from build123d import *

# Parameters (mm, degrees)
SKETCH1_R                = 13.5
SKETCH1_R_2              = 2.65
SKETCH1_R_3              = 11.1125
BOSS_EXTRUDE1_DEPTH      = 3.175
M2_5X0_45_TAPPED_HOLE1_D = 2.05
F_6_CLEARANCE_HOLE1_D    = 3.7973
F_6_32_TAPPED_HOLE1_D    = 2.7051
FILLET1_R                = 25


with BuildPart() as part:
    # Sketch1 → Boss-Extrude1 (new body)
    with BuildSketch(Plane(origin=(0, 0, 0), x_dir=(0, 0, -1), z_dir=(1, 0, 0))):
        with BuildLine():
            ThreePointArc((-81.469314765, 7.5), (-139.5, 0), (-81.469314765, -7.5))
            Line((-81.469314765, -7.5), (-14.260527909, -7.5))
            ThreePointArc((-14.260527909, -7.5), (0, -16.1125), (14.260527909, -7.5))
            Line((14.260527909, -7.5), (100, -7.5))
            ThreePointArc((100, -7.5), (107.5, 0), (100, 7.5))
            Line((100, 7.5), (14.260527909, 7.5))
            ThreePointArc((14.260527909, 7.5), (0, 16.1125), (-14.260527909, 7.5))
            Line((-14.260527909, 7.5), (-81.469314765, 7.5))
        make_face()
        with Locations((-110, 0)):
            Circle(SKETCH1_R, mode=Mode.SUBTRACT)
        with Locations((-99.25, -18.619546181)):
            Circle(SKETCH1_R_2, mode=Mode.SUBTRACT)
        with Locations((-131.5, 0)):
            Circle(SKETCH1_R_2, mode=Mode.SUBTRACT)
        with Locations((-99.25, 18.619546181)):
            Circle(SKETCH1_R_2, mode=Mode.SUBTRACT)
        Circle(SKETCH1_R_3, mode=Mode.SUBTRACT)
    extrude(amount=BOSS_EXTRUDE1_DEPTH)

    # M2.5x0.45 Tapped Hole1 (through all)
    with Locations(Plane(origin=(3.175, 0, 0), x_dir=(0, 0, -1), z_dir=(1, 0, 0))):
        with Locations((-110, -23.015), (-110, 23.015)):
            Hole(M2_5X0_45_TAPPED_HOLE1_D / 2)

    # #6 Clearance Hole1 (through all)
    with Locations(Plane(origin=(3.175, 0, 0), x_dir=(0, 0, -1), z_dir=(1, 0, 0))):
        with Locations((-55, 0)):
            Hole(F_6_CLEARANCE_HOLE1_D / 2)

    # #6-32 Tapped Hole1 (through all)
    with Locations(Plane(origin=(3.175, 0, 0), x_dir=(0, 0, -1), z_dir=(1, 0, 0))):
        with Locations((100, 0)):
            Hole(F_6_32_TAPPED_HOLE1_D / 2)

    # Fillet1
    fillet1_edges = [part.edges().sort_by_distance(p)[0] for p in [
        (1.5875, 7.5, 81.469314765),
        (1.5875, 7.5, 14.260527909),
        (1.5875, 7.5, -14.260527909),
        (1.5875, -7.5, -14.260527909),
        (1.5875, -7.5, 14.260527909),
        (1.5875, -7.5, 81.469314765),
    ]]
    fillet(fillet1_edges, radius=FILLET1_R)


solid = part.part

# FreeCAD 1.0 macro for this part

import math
import FreeCAD as App
import Part
import Sketcher


def edges_at(feature, points):
    """Names of the edges that pass closest to the given points."""
    edges = feature.Shape.Edges
    near = lambda p: min(range(len(edges)), key=lambda i: edges[i].distToShape(Part.Vertex(*p))[0])
    return sorted({f"Edge{near(p) + 1}" for p in points})

doc = App.newDocument("Part")
body = doc.addObject("PartDesign::Body", "Body")

sketch1 = body.newObject("Sketcher::SketchObject", "Sketch")
sketch1.AttachmentSupport = (doc.getObject("YZ_Plane"), [""])
sketch1.MapMode = "FlatFace"
sketch1.addGeometry(Part.ArcOfCircle(Part.Circle(App.Vector(0, 110, 0), App.Vector(0, 0, 1), 29.5), math.radians(-75), math.radians(255)), False)
sketch1.addGeometry(Part.LineSegment(App.Vector(-7.5, 81.5, 0), App.Vector(-7.5, 14.3, 0)), False)
sketch1.addGeometry(Part.ArcOfCircle(Part.Circle(App.Vector(0, 0, 0), App.Vector(0, 0, 1), 16.1), math.radians(118), math.radians(242)), False)
sketch1.addGeometry(Part.LineSegment(App.Vector(-7.5, -14.3, 0), App.Vector(-7.5, -100, 0)), False)
sketch1.addGeometry(Part.ArcOfCircle(Part.Circle(App.Vector(0, -100, 0), App.Vector(0, 0, 1), 7.5), math.radians(180), math.radians(360)), False)
sketch1.addGeometry(Part.LineSegment(App.Vector(7.5, -100, 0), App.Vector(7.5, -14.3, 0)), False)
sketch1.addGeometry(Part.ArcOfCircle(Part.Circle(App.Vector(0, 0, 0), App.Vector(0, 0, 1), 16.1), math.radians(-62), math.radians(62)), False)
sketch1.addGeometry(Part.LineSegment(App.Vector(7.5, 14.3, 0), App.Vector(7.5, 81.5, 0)), False)
sketch1.addGeometry(Part.Circle(App.Vector(-18.6, 99.2, 0), App.Vector(0, 0, 1), 2.6), False)
sketch1.addGeometry(Part.Circle(App.Vector(0, 131.5, 0), App.Vector(0, 0, 1), 2.6), False)
sketch1.addGeometry(Part.Circle(App.Vector(0, 110, 0), App.Vector(0, 0, 1), 13.5), False)
sketch1.addGeometry(Part.Circle(App.Vector(18.6, 99.2, 0), App.Vector(0, 0, 1), 2.6), False)
sketch1.addGeometry(Part.Circle(App.Vector(0, 0, 0), App.Vector(0, 0, 1), 11.1), False)
sketch1.addConstraint(Sketcher.Constraint("Coincident", 0, 2, 1, 1))
sketch1.addConstraint(Sketcher.Constraint("Coincident", 1, 2, 2, 1))
sketch1.addConstraint(Sketcher.Constraint("Coincident", 2, 2, 3, 1))
sketch1.addConstraint(Sketcher.Constraint("Tangent", 3, 2, 4, 1))
sketch1.addConstraint(Sketcher.Constraint("Tangent", 4, 2, 5, 1))
sketch1.addConstraint(Sketcher.Constraint("Coincident", 5, 2, 6, 1))
sketch1.addConstraint(Sketcher.Constraint("Coincident", 6, 2, 7, 1))
sketch1.addConstraint(Sketcher.Constraint("Coincident", 7, 2, 0, 1))
sketch1.addConstraint(Sketcher.Constraint("Vertical", 1))
sketch1.addConstraint(Sketcher.Constraint("Vertical", 3))
sketch1.addConstraint(Sketcher.Constraint("Vertical", 5))
sketch1.addConstraint(Sketcher.Constraint("Vertical", 7))
sketch1.addConstraint(Sketcher.Constraint("Coincident", 2, 3, -1, 1))
sketch1.addConstraint(Sketcher.Constraint("Coincident", 6, 3, -1, 1))
sketch1.addConstraint(Sketcher.Constraint("Coincident", 12, 3, -1, 1))
sketch1.addConstraint(Sketcher.Constraint("Coincident", 10, 3, 0, 3))
sketch1.addConstraint(Sketcher.Constraint("Equal", 2, 6))
sketch1.addConstraint(Sketcher.Constraint("Equal", 8, 9))
sketch1.addConstraint(Sketcher.Constraint("Equal", 9, 11))
sketch1.addConstraint(Sketcher.Constraint("Symmetric", 8, 3, 11, 3, -2))
sketch1.addConstraint(Sketcher.Constraint("Symmetric", 0, 2, 7, 2, -2))
sketch1.addConstraint(Sketcher.Constraint("PointOnObject", 4, 3, -2))
sketch1.addConstraint(Sketcher.Constraint("PointOnObject", 9, 3, -2))
sketch1.addConstraint(Sketcher.Constraint("Vertical", 1, 2, 2, 2))
sketch1.addConstraint(Sketcher.Constraint("Diameter", 10, 27.0))
sketch1.addConstraint(Sketcher.Constraint("Diameter", 8, 5.3))
sketch1.addConstraint(Sketcher.Constraint("Radius", 0, 29.5))
sketch1.addConstraint(Sketcher.Constraint("Radius", 4, 7.5))
sketch1.addConstraint(Sketcher.Constraint("Diameter", 12, 22.225))
sketch1.addConstraint(Sketcher.Constraint("DistanceY", -1, 1, 0, 3, 110.0))
sketch1.addConstraint(Sketcher.Constraint("DistanceY", 4, 3, -1, 1, 100.0))
sketch1.addConstraint(Sketcher.Constraint("DistanceY", -1, 1, 9, 3, 131.5))
sketch1.addConstraint(Sketcher.Constraint("Radius", 2, 16.1125))
sketch1.addConstraint(Sketcher.Constraint("DistanceY", -1, 1, 8, 3, 99.25))
sketch1.addConstraint(Sketcher.Constraint("DistanceX", 8, 3, -1, 1, 18.619546))
pad1 = body.newObject("PartDesign::Pad", "Pad")
pad1.Profile = sketch1
pad1.Length = 3.175

sketch2 = body.newObject("Sketcher::SketchObject", "Sketch001")
sketch2.AttachmentSupport = (doc.getObject("YZ_Plane"), [""])
sketch2.MapMode = "FlatFace"
sketch2.AttachmentOffset = App.Placement(App.Vector(0, 0, 3.175), App.Rotation())
sketch2.addGeometry(Part.Circle(App.Vector(-23, 110, 0), App.Vector(0, 0, 1), 1), False)
sketch2.addGeometry(Part.Circle(App.Vector(23, 110, 0), App.Vector(0, 0, 1), 1), False)
sketch2.addConstraint(Sketcher.Constraint("Equal", 0, 1))
sketch2.addConstraint(Sketcher.Constraint("Symmetric", 0, 3, 1, 3, -2))
sketch2.addConstraint(Sketcher.Constraint("Diameter", 0, 2.05))
sketch2.addConstraint(Sketcher.Constraint("DistanceY", -1, 1, 0, 3, 110.0))
sketch2.addConstraint(Sketcher.Constraint("DistanceX", 0, 3, 1, 3, 46.03))
doc.recompute()
hole = body.newObject("PartDesign::Hole", "Hole")
hole.Profile = sketch2
hole.ThreadType = "None"
hole.Diameter = 2.05
hole.DepthType = "ThroughAll"

sketch3 = body.newObject("Sketcher::SketchObject", "Sketch002")
sketch3.AttachmentSupport = (doc.getObject("YZ_Plane"), [""])
sketch3.MapMode = "FlatFace"
sketch3.AttachmentOffset = App.Placement(App.Vector(0, 0, 3.175), App.Rotation())
sketch3.addGeometry(Part.Circle(App.Vector(0, 55, 0), App.Vector(0, 0, 1), 1.9), False)
sketch3.addConstraint(Sketcher.Constraint("PointOnObject", 0, 3, -2))
sketch3.addConstraint(Sketcher.Constraint("DistanceY", -1, 1, 0, 3, 55.0))
sketch3.addConstraint(Sketcher.Constraint("Diameter", 0, 3.7973))
doc.recompute()
hole2 = body.newObject("PartDesign::Hole", "Hole001")
hole2.Profile = sketch3
hole2.ThreadType = "None"
hole2.Diameter = 3.7973
hole2.DepthType = "ThroughAll"

sketch4 = body.newObject("Sketcher::SketchObject", "Sketch003")
sketch4.AttachmentSupport = (doc.getObject("YZ_Plane"), [""])
sketch4.MapMode = "FlatFace"
sketch4.AttachmentOffset = App.Placement(App.Vector(0, 0, 3.175), App.Rotation())
sketch4.addGeometry(Part.Circle(App.Vector(0, -100, 0), App.Vector(0, 0, 1), 1.4), False)
sketch4.addConstraint(Sketcher.Constraint("PointOnObject", 0, 3, -2))
sketch4.addConstraint(Sketcher.Constraint("DistanceY", 0, 3, -1, 1, 100.0))
sketch4.addConstraint(Sketcher.Constraint("Diameter", 0, 2.7051))
doc.recompute()
hole3 = body.newObject("PartDesign::Hole", "Hole002")
hole3.Profile = sketch4
hole3.ThreadType = "None"
hole3.Diameter = 2.7051
hole3.DepthType = "ThroughAll"
doc.recompute()

fillet = body.newObject("PartDesign::Fillet", "Fillet")
fillet.Base = (hole3, edges_at(hole3, [
    (1.587, 7.5, 81.469),
    (1.587, 7.5, 14.261),
    (1.587, 7.5, -14.261),
    (1.587, -7.5, -14.261),
    (1.587, -7.5, 14.261),
    (1.587, -7.5, 81.469),
]))
fillet.Radius = 25

doc.recompute()
